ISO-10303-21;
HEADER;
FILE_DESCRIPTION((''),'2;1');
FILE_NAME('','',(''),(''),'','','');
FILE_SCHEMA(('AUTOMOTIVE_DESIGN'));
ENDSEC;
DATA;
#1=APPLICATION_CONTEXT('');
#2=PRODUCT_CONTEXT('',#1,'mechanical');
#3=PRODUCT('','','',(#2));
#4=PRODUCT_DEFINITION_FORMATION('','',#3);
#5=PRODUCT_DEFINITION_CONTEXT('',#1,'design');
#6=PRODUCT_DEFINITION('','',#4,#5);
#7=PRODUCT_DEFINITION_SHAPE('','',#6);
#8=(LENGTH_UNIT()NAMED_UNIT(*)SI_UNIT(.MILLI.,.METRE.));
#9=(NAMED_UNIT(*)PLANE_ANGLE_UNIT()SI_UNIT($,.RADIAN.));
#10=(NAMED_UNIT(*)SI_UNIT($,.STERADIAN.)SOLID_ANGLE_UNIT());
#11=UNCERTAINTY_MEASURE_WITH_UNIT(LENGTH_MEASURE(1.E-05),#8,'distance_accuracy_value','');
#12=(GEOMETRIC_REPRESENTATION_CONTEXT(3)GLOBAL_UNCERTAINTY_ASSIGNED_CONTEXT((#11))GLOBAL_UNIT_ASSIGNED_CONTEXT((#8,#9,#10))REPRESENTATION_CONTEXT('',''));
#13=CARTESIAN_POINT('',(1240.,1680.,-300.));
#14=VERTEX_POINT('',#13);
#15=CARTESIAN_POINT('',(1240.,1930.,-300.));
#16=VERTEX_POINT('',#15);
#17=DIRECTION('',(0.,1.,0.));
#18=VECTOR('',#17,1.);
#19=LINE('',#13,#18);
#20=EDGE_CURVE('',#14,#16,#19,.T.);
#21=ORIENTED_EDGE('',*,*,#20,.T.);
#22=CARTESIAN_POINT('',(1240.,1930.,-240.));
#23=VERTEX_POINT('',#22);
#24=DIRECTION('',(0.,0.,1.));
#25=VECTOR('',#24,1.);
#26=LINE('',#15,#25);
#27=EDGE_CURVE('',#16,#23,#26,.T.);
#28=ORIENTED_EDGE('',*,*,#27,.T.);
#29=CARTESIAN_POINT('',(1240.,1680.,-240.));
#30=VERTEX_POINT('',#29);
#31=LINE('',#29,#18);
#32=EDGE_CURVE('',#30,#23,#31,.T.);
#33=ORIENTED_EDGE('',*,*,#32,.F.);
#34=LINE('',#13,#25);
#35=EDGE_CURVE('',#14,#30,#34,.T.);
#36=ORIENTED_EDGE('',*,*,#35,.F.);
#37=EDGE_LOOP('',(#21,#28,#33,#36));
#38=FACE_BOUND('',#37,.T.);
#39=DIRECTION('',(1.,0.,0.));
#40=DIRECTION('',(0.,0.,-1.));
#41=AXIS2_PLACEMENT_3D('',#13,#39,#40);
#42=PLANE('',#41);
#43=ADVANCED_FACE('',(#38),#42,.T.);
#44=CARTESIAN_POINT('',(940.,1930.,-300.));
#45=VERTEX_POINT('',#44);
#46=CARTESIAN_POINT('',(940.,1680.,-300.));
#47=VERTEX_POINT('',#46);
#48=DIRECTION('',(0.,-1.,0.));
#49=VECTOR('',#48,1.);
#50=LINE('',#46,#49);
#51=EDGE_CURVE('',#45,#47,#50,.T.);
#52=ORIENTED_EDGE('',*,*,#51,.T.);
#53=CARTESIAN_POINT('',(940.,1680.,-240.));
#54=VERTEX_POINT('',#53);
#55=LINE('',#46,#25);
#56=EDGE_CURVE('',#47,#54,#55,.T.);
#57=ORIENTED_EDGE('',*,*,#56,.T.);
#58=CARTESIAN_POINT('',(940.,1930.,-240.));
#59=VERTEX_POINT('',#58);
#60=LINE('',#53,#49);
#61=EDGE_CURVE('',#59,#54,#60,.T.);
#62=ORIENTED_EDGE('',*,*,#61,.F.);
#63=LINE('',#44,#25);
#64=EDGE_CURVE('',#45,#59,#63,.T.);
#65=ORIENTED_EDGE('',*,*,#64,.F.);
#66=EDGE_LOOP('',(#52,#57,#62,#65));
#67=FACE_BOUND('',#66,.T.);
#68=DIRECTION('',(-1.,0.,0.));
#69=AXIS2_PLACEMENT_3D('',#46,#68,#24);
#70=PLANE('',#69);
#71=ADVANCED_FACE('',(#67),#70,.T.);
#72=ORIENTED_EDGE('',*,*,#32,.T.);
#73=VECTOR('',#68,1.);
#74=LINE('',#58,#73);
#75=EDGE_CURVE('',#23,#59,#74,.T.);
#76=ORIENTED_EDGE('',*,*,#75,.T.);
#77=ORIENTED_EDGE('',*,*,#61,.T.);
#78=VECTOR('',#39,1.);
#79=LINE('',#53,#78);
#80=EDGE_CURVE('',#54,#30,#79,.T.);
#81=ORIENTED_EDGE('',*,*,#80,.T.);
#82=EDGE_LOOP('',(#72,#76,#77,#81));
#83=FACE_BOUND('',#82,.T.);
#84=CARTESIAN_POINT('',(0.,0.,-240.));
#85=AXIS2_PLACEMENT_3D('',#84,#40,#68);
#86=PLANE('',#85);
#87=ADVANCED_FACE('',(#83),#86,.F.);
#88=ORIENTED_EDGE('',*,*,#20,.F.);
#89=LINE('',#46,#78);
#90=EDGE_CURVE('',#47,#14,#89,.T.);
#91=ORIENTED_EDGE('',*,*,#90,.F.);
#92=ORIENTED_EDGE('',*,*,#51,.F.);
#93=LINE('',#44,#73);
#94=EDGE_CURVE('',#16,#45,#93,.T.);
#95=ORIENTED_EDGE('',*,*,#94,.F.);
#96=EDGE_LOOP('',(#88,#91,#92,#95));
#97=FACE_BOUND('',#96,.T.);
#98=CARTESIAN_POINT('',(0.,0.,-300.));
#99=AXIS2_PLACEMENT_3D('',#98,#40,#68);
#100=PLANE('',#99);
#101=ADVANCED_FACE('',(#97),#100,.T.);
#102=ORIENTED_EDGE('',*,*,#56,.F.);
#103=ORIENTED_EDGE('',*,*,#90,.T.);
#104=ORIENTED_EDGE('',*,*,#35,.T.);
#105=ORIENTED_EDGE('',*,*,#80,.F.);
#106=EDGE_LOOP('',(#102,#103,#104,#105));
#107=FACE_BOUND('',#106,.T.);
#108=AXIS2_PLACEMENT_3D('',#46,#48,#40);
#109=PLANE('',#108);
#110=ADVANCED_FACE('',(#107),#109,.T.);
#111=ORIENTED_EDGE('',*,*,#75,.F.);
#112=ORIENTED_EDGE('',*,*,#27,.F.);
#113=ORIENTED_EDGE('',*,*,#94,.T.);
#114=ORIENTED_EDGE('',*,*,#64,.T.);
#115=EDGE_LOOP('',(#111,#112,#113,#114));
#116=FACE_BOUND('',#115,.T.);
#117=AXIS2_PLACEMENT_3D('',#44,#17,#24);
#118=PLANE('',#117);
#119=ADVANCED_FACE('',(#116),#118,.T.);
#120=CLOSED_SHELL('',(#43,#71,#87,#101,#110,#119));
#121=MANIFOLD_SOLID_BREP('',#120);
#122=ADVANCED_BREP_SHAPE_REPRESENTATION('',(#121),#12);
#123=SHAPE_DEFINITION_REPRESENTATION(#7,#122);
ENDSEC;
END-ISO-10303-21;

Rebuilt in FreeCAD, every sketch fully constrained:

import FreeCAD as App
import Part
import Sketcher
Q = App.Units.Quantity


def add_polygon(sketch, points):
    """Adds a closed chain of lines whose ends are joined by coincident constraints."""
    first, n = sketch.GeometryCount, len(points)
    for a, b in zip(points, points[1:] + points[:1]):
        sketch.addGeometry(Part.LineSegment(App.Vector(*a, 0), App.Vector(*b, 0)), False)
    for i in range(n):
        sketch.addConstraint(Sketcher.Constraint("Coincident", first + i, 2, first + (i + 1) % n, 1))

doc = App.newDocument("Part")
params = doc.addObject("Spreadsheet::Sheet", "Params")
for row, (alias, value) in enumerate([
    ("sketch1_width", "300 mm"),
    ("sketch1_height", "250 mm"),
    ("pad1_length", "60 mm"),
], start=1):
    params.set(f"A{row}", alias)
    params.set(f"B{row}", "=" + value)
    params.setAlias(f"B{row}", alias)

body = doc.addObject("PartDesign::Body", "Body")

# Sketch on XY plane
sketch1 = body.newObject("Sketcher::SketchObject", "Sketch")
sketch1.AttachmentSupport = (doc.getObject("XY_Plane"), [""])
sketch1.MapMode = "FlatFace"
sketch1.AttachmentOffset = App.Placement(App.Vector(0, 0, -240), App.Rotation())
add_polygon(sketch1, [(940, 1930), (940, 1680), (1240, 1680), (1240, 1930)])  # lines 0-3
sketch1.addConstraint(Sketcher.Constraint("Vertical", 0))
sketch1.addConstraint(Sketcher.Constraint("Horizontal", 1))
sketch1.addConstraint(Sketcher.Constraint("Vertical", 2))
sketch1.addConstraint(Sketcher.Constraint("Horizontal", 3))
sketch1.addConstraint(Sketcher.Constraint("DistanceX", 1, 1, 1, 2, Q("300 mm")))
sketch1.addConstraint(Sketcher.Constraint("DistanceY", 0, 2, 0, 1, Q("250 mm")))
sketch1.addConstraint(Sketcher.Constraint("DistanceX", -1, 1, 0, 2, Q("940 mm")))
sketch1.addConstraint(Sketcher.Constraint("DistanceY", -1, 1, 0, 2, Q("1680 mm")))
sketch1.setExpression("Constraints[8]", "Params.sketch1_width")
sketch1.setExpression("Constraints[9]", "Params.sketch1_height")
pad1 = body.newObject("PartDesign::Pad", "Pad")
pad1.Profile = sketch1
pad1.setExpression("Length", "Params.pad1_length")
pad1.Reversed = True

doc.recompute()
